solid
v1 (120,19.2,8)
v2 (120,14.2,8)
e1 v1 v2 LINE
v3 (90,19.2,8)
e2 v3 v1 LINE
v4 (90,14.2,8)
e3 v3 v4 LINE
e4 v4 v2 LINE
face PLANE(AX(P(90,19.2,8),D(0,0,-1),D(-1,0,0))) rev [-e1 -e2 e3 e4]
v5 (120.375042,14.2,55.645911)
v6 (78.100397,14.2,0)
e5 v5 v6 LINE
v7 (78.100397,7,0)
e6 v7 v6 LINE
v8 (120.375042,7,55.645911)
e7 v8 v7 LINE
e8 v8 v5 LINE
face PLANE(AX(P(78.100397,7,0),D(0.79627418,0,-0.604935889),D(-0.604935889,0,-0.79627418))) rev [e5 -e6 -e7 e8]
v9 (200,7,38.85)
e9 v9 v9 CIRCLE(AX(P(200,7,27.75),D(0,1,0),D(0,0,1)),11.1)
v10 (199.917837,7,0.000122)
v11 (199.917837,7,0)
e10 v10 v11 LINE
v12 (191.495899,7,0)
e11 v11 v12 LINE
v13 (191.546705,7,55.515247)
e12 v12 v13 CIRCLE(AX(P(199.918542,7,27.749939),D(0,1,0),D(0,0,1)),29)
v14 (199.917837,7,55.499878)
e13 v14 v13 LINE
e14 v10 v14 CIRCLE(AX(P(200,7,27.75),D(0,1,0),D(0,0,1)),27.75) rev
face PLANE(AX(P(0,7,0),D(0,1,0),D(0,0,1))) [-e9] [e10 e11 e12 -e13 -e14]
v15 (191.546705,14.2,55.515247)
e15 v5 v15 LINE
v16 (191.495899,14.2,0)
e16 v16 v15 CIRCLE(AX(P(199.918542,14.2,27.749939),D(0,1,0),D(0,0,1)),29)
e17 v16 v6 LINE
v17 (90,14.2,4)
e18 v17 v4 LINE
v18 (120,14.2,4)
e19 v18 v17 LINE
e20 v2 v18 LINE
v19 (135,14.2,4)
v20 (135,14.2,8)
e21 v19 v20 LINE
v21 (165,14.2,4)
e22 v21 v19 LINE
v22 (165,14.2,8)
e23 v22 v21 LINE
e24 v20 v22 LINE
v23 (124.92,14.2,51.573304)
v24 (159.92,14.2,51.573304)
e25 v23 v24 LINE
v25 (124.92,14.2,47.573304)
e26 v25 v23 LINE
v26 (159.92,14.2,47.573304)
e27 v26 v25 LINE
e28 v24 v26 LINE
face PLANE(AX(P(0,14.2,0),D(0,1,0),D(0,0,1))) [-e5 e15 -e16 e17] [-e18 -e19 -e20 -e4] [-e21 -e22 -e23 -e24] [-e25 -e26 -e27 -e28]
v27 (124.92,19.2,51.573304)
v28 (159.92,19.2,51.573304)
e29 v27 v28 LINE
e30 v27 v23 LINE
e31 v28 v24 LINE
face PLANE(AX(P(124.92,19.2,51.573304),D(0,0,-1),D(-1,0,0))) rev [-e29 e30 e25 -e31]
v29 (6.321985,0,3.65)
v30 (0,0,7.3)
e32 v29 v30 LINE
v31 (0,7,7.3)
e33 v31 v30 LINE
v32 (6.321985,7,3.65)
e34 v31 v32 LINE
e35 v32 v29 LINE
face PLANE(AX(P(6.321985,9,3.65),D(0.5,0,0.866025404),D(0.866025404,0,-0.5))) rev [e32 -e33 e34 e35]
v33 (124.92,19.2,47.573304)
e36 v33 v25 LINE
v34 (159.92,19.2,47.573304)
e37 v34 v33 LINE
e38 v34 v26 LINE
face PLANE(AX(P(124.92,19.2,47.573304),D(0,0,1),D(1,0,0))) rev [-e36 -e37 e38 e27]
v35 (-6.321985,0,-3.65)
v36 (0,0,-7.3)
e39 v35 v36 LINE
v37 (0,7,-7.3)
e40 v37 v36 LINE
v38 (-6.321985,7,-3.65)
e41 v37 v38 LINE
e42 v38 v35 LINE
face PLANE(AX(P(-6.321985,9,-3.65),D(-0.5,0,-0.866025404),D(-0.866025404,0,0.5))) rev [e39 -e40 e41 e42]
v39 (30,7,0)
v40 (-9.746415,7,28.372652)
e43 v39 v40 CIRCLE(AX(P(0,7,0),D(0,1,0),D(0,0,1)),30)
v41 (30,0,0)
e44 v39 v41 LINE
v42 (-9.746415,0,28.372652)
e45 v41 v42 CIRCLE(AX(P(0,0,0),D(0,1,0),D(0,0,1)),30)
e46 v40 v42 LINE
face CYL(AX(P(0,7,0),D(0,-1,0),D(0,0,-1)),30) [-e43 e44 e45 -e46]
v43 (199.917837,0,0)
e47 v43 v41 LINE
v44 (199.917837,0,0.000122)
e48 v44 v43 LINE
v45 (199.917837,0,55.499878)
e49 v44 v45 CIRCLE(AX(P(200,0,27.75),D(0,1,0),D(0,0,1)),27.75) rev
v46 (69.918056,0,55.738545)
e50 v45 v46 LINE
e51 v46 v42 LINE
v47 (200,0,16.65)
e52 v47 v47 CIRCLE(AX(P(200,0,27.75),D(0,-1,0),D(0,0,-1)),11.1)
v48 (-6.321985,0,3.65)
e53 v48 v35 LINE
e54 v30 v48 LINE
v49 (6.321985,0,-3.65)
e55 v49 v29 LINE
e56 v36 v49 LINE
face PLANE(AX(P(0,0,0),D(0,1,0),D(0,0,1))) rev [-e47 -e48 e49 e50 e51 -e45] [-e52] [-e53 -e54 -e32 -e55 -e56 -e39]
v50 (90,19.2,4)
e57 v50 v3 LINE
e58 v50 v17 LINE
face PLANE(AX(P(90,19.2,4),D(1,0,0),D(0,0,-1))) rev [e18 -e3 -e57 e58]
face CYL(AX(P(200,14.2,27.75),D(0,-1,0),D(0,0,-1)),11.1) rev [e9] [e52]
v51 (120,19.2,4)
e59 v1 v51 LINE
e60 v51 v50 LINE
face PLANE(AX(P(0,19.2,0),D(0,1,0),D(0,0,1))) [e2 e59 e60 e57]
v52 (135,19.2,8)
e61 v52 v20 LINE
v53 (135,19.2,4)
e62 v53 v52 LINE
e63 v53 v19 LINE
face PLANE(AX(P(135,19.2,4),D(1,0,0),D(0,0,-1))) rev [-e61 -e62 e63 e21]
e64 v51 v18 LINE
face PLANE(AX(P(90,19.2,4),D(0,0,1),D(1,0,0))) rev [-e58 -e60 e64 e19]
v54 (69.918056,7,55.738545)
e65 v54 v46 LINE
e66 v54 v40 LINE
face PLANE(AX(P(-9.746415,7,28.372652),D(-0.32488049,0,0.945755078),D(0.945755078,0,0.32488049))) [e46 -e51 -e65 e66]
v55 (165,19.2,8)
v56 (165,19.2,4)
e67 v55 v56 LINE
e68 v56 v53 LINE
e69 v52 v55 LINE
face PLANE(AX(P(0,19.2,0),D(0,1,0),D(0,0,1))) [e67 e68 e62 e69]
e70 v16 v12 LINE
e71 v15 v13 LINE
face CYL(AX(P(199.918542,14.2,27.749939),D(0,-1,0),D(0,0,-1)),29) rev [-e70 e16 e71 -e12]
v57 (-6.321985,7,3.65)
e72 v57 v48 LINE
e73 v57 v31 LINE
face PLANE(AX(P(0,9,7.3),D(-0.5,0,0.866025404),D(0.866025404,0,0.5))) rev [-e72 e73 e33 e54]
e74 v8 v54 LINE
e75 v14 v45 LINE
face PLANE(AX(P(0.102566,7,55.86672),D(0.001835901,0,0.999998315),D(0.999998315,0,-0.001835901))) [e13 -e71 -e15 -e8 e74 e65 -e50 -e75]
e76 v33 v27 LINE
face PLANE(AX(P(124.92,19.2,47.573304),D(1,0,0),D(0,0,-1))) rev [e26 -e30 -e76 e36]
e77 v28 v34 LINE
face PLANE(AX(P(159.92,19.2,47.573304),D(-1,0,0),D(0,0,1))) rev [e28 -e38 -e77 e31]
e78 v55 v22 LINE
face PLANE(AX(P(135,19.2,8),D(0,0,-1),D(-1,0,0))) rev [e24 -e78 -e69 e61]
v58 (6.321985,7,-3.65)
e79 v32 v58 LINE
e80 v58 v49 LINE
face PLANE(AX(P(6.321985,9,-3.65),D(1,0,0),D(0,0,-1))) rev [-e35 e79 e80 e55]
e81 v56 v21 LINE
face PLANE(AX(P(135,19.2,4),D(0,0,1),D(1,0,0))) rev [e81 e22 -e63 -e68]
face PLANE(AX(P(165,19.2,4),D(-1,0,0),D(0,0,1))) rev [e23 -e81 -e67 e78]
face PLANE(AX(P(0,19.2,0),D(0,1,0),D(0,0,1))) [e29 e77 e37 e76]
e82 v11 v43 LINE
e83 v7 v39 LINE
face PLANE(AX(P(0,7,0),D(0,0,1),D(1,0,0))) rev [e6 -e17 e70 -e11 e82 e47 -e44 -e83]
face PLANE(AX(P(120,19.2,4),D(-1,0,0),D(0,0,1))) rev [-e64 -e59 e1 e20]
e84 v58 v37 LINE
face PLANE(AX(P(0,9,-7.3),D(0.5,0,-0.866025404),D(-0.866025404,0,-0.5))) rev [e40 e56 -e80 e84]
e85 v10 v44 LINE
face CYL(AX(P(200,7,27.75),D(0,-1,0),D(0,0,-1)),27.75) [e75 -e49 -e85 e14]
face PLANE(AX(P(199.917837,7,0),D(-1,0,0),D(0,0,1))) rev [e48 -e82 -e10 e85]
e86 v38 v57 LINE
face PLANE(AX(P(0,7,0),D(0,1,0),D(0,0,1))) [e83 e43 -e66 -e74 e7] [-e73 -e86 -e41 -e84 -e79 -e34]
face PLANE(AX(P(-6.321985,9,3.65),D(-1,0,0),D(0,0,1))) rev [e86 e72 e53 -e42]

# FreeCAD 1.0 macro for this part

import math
import FreeCAD as App
import Part
import Sketcher
from FreeCAD import Vector
Q = App.Units.Quantity


def add_polygon(sketch, points):
    """Adds a closed chain of lines whose ends are joined by coincident constraints."""
    first, n = sketch.GeometryCount, len(points)
    for a, b in zip(points, points[1:] + points[:1]):
        sketch.addGeometry(Part.LineSegment(App.Vector(*a, 0), App.Vector(*b, 0)), False)
    for i in range(n):
        sketch.addConstraint(Sketcher.Constraint("Coincident", first + i, 2, first + (i + 1) % n, 1))

doc = App.newDocument("Part")
body = doc.addObject("PartDesign::Body", "Body")

# Sketch on XZ plane
sketch1 = body.newObject("Sketcher::SketchObject", "Sketch")
sketch1.AttachmentSupport = (doc.getObject("XZ_Plane"), [""])
sketch1.MapMode = "FlatFace"
sketch1.addGeometry([
    Part.LineSegment(Vector(199.917837, 0, 0), Vector(30, 0, 0)),  # 0
    Part.ArcOfCircle(Part.Circle(Vector(0, 0, 0), Vector(0, 0, 1), 30), math.radians(108.958335), math.radians(360)),  # 1
    Part.LineSegment(Vector(-9.746415, 28.372652, 0), Vector(69.918056, 55.738545, 0)),  # 2
    Part.LineSegment(Vector(69.918056, 55.738545, 0), Vector(199.917837, 55.499878, 0)),  # 3
    Part.ArcOfCircle(Part.Circle(Vector(200, 27.75, 0), Vector(0, 0, 1), 27.75), math.radians(-90.169643), math.radians(90.169643)),  # 4
    Part.LineSegment(Vector(199.917837, 0.000122, 0), Vector(199.917837, 0, 0)),  # 5
], False)
sketch1.addConstraint([
    Sketcher.Constraint("Coincident", 0, 2, 1, 2),
    Sketcher.Constraint("Tangent", 1, 1, 2, 1),
    Sketcher.Constraint("Coincident", 2, 2, 3, 1),
    Sketcher.Constraint("Coincident", 3, 2, 4, 2),
    Sketcher.Constraint("Coincident", 4, 1, 5, 1),
    Sketcher.Constraint("Coincident", 5, 2, 0, 1),
    Sketcher.Constraint("Horizontal", 0),
    Sketcher.Constraint("Vertical", 5),
    Sketcher.Constraint("Coincident", 1, 3, -1, 1),
    Sketcher.Constraint("PointOnObject", 0, 2, -1),
    Sketcher.Constraint("Vertical", 3, 2, 4, 1),
    Sketcher.Constraint("Radius", 1, 30.0),
    Sketcher.Constraint("Radius", 4, 27.75),
    Sketcher.Constraint("Distance", 3, 130.0),
    Sketcher.Constraint("DistanceX", -1, 1, 4, 3, 200.0),
    Sketcher.Constraint("DistanceY", -1, 1, 4, 3, 27.75),
    Sketcher.Constraint("DistanceX", 0, 2, 0, 1, 169.917837),
    Sketcher.Constraint("DistanceX", 1, 1, 2, 2, 79.664471),
])
pad1 = body.newObject("PartDesign::Pad", "Pad")
pad1.Profile = sketch1
pad1.Length = 7
pad1.Reversed = True

# Sketch on XZ plane
sketch2 = body.newObject("Sketcher::SketchObject", "Sketch001")
sketch2.AttachmentSupport = (doc.getObject("XZ_Plane"), [""])
sketch2.MapMode = "FlatFace"
add_polygon(sketch2, [(0, 7.3), (-6.321985, 3.65), (-6.321985, -3.65), (0, -7.3), (6.321985, -3.65), (6.321985, 3.65)])  # lines 0-5
sketch2.addConstraint([
    Sketcher.Constraint("Vertical", 1),
    Sketcher.Constraint("Vertical", 4),
    Sketcher.Constraint("Symmetric", 0, 2, 3, 2, -1, 1),
    Sketcher.Constraint("Symmetric", 2, 2, 5, 2, -1, 1),
    Sketcher.Constraint("PointOnObject", 2, 2, -2),
    Sketcher.Constraint("Parallel", 2, 5),
    Sketcher.Constraint("Horizontal", 1, 2, 3, 2),
    Sketcher.Constraint("Angle", 0, Q("-150 deg")),
    Sketcher.Constraint("DistanceY", 1, 2, 1, 1, 7.3),
    Sketcher.Constraint("Distance", 0, 7.3),
])
pocket1 = body.newObject("PartDesign::Pocket", "Pocket")
pocket1.Profile = sketch2
pocket1.Length = 9

# Sketch on XZ plane
sketch3 = body.newObject("Sketcher::SketchObject", "Sketch002")
sketch3.AttachmentSupport = (doc.getObject("XZ_Plane"), [""])
sketch3.MapMode = "FlatFace"
sketch3.AttachmentOffset = App.Placement(Vector(0, 0, -7), App.Rotation())
sketch3.addGeometry([
    Part.ArcOfCircle(Part.Circle(Vector(199.918542, 27.749939, 0), Vector(0, 0, 1), 29), math.radians(106.779187), math.radians(253.115942)),
    Part.LineSegment(Vector(191.495899, 0, 0), Vector(69.918542, 0, 0)),
    Part.LineSegment(Vector(69.918542, 0, 0), Vector(69.918542, 55.738545, 0)),
    Part.LineSegment(Vector(69.918542, 55.738545, 0), Vector(191.546705, 55.515247, 0)),
], False)
sketch3.addConstraint([
    Sketcher.Constraint("Coincident", 0, 2, 1, 1),
    Sketcher.Constraint("Coincident", 1, 2, 2, 1),
    Sketcher.Constraint("Coincident", 2, 2, 3, 1),
    Sketcher.Constraint("Coincident", 3, 2, 0, 1),
    Sketcher.Constraint("Horizontal", 1),
    Sketcher.Constraint("Vertical", 2),
    Sketcher.Constraint("PointOnObject", 0, 2, -1),
    Sketcher.Constraint("Radius", 0, 29.0),
    Sketcher.Constraint("DistanceX", 1, 2, 0, 3, 130.0),
    Sketcher.Constraint("DistanceX", -1, 1, 0, 2, 191.495899),
    Sketcher.Constraint("Distance", 3, 121.628368),
    Sketcher.Constraint("DistanceX", 1, 2, 1, 1, 121.577357),
    Sketcher.Constraint("DistanceY", 2, 1, 2, 2, 55.738545),
])
pad2 = body.newObject("PartDesign::Pad", "Pad001")
pad2.Profile = sketch3
pad2.Length = 7.2
pad2.Reversed = True

# Sketch on XZ plane
sketch4 = body.newObject("Sketcher::SketchObject", "Sketch003")
sketch4.AttachmentSupport = (doc.getObject("XZ_Plane"), [""])
sketch4.MapMode = "FlatFace"
sketch4.addGeometry(Part.Circle(Vector(200, 27.75, 0), Vector(0, 0, 1), 11.1), False)
sketch4.addConstraint([
    Sketcher.Constraint("Diameter", 0, 22.2),
    Sketcher.Constraint("DistanceX", -1, 1, 0, 3, 200.0),
    Sketcher.Constraint("DistanceY", -1, 1, 0, 3, 27.75),
])
pocket2 = body.newObject("PartDesign::Pocket", "Pocket001")
pocket2.Profile = sketch4
pocket2.Type = "ThroughAll"

# Sketch on XZ plane
sketch5 = body.newObject("Sketcher::SketchObject", "Sketch004")
sketch5.AttachmentSupport = (doc.getObject("XZ_Plane"), [""])
sketch5.MapMode = "FlatFace"
sketch5.AttachmentOffset = App.Placement(Vector(0, 0, -14.2), App.Rotation())
add_polygon(sketch5, [(90, 4), (90, 8), (120, 8), (120, 4)])  # lines 0-3
add_polygon(sketch5, [(135, 4), (135, 8), (165, 8), (165, 4)])  # lines 4-7
add_polygon(sketch5, [(124.92, 47.573304), (124.92, 51.573304), (159.92, 51.573304), (159.92, 47.573304)])  # lines 8-11
sketch5.addConstraint([
    Sketcher.Constraint("Vertical", 0),
    Sketcher.Constraint("Horizontal", 1),
    Sketcher.Constraint("Vertical", 2),
    Sketcher.Constraint("Horizontal", 3),
    Sketcher.Constraint("Vertical", 4),
    Sketcher.Constraint("Horizontal", 5),
    Sketcher.Constraint("Vertical", 6),
    Sketcher.Constraint("Horizontal", 7),
    Sketcher.Constraint("Vertical", 8),
    Sketcher.Constraint("Horizontal", 9),
    Sketcher.Constraint("Vertical", 10),
    Sketcher.Constraint("Horizontal", 11),
    Sketcher.Constraint("Horizontal", 1, 2, 4, 2),
    Sketcher.Constraint("Horizontal", 3, 2, 6, 2),
    Sketcher.Constraint("Equal", 3, 5),
    Sketcher.Constraint("Equal", 6, 8),
    Sketcher.Constraint("DistanceX", 1, 1, 1, 2, 30.0),
    Sketcher.Constraint("DistanceX", 9, 1, 9, 2, 35.0),
    Sketcher.Constraint("DistanceY", 0, 1, 0, 2, 4.0),
    Sketcher.Constraint("DistanceX", -1, 1, 0, 2, 90.0),
    Sketcher.Constraint("DistanceY", -1, 1, 0, 2, 8.0),
    Sketcher.Constraint("DistanceX", -1, 1, 4, 2, 135.0),
    Sketcher.Constraint("DistanceX", -1, 1, 8, 2, 124.92),
    Sketcher.Constraint("DistanceY", -1, 1, 8, 2, 51.573304),
])
pad3 = body.newObject("PartDesign::Pad", "Pad002")
pad3.Profile = sketch5
pad3.Length = 5
pad3.Reversed = True

# Sketch on XZ plane
sketch6 = body.newObject("Sketcher::SketchObject", "Sketch005")
sketch6.AttachmentSupport = (doc.getObject("XZ_Plane"), [""])
sketch6.MapMode = "FlatFace"
sketch6.AttachmentOffset = App.Placement(Vector(0, 0, -14.2), App.Rotation())
add_polygon(sketch6, [(78.100397, 0), (69.918542, 0), (69.918542, 55.738545), (120.375042, 55.645911)])  # lines 0-3
sketch6.addConstraint([
    Sketcher.Constraint("Horizontal", 0),
    Sketcher.Constraint("Vertical", 1),
    Sketcher.Constraint("PointOnObject", 0, 2, -1),
    Sketcher.Constraint("DistanceX", 1, 2, 2, 2, 50.456501),
    Sketcher.Constraint("DistanceX", 0, 2, 0, 1, 8.181855),
    Sketcher.Constraint("DistanceY", 1, 1, 1, 2, 55.738545),
    Sketcher.Constraint("DistanceX", -1, 1, 0, 2, 69.918542),
    Sketcher.Constraint("DistanceY", -1, 1, 2, 2, 55.645911),
])
pocket3 = body.newObject("PartDesign::Pocket", "Pocket002")
pocket3.Profile = sketch6
pocket3.Length = 7.2
pocket3.Reversed = True

doc.recompute()
